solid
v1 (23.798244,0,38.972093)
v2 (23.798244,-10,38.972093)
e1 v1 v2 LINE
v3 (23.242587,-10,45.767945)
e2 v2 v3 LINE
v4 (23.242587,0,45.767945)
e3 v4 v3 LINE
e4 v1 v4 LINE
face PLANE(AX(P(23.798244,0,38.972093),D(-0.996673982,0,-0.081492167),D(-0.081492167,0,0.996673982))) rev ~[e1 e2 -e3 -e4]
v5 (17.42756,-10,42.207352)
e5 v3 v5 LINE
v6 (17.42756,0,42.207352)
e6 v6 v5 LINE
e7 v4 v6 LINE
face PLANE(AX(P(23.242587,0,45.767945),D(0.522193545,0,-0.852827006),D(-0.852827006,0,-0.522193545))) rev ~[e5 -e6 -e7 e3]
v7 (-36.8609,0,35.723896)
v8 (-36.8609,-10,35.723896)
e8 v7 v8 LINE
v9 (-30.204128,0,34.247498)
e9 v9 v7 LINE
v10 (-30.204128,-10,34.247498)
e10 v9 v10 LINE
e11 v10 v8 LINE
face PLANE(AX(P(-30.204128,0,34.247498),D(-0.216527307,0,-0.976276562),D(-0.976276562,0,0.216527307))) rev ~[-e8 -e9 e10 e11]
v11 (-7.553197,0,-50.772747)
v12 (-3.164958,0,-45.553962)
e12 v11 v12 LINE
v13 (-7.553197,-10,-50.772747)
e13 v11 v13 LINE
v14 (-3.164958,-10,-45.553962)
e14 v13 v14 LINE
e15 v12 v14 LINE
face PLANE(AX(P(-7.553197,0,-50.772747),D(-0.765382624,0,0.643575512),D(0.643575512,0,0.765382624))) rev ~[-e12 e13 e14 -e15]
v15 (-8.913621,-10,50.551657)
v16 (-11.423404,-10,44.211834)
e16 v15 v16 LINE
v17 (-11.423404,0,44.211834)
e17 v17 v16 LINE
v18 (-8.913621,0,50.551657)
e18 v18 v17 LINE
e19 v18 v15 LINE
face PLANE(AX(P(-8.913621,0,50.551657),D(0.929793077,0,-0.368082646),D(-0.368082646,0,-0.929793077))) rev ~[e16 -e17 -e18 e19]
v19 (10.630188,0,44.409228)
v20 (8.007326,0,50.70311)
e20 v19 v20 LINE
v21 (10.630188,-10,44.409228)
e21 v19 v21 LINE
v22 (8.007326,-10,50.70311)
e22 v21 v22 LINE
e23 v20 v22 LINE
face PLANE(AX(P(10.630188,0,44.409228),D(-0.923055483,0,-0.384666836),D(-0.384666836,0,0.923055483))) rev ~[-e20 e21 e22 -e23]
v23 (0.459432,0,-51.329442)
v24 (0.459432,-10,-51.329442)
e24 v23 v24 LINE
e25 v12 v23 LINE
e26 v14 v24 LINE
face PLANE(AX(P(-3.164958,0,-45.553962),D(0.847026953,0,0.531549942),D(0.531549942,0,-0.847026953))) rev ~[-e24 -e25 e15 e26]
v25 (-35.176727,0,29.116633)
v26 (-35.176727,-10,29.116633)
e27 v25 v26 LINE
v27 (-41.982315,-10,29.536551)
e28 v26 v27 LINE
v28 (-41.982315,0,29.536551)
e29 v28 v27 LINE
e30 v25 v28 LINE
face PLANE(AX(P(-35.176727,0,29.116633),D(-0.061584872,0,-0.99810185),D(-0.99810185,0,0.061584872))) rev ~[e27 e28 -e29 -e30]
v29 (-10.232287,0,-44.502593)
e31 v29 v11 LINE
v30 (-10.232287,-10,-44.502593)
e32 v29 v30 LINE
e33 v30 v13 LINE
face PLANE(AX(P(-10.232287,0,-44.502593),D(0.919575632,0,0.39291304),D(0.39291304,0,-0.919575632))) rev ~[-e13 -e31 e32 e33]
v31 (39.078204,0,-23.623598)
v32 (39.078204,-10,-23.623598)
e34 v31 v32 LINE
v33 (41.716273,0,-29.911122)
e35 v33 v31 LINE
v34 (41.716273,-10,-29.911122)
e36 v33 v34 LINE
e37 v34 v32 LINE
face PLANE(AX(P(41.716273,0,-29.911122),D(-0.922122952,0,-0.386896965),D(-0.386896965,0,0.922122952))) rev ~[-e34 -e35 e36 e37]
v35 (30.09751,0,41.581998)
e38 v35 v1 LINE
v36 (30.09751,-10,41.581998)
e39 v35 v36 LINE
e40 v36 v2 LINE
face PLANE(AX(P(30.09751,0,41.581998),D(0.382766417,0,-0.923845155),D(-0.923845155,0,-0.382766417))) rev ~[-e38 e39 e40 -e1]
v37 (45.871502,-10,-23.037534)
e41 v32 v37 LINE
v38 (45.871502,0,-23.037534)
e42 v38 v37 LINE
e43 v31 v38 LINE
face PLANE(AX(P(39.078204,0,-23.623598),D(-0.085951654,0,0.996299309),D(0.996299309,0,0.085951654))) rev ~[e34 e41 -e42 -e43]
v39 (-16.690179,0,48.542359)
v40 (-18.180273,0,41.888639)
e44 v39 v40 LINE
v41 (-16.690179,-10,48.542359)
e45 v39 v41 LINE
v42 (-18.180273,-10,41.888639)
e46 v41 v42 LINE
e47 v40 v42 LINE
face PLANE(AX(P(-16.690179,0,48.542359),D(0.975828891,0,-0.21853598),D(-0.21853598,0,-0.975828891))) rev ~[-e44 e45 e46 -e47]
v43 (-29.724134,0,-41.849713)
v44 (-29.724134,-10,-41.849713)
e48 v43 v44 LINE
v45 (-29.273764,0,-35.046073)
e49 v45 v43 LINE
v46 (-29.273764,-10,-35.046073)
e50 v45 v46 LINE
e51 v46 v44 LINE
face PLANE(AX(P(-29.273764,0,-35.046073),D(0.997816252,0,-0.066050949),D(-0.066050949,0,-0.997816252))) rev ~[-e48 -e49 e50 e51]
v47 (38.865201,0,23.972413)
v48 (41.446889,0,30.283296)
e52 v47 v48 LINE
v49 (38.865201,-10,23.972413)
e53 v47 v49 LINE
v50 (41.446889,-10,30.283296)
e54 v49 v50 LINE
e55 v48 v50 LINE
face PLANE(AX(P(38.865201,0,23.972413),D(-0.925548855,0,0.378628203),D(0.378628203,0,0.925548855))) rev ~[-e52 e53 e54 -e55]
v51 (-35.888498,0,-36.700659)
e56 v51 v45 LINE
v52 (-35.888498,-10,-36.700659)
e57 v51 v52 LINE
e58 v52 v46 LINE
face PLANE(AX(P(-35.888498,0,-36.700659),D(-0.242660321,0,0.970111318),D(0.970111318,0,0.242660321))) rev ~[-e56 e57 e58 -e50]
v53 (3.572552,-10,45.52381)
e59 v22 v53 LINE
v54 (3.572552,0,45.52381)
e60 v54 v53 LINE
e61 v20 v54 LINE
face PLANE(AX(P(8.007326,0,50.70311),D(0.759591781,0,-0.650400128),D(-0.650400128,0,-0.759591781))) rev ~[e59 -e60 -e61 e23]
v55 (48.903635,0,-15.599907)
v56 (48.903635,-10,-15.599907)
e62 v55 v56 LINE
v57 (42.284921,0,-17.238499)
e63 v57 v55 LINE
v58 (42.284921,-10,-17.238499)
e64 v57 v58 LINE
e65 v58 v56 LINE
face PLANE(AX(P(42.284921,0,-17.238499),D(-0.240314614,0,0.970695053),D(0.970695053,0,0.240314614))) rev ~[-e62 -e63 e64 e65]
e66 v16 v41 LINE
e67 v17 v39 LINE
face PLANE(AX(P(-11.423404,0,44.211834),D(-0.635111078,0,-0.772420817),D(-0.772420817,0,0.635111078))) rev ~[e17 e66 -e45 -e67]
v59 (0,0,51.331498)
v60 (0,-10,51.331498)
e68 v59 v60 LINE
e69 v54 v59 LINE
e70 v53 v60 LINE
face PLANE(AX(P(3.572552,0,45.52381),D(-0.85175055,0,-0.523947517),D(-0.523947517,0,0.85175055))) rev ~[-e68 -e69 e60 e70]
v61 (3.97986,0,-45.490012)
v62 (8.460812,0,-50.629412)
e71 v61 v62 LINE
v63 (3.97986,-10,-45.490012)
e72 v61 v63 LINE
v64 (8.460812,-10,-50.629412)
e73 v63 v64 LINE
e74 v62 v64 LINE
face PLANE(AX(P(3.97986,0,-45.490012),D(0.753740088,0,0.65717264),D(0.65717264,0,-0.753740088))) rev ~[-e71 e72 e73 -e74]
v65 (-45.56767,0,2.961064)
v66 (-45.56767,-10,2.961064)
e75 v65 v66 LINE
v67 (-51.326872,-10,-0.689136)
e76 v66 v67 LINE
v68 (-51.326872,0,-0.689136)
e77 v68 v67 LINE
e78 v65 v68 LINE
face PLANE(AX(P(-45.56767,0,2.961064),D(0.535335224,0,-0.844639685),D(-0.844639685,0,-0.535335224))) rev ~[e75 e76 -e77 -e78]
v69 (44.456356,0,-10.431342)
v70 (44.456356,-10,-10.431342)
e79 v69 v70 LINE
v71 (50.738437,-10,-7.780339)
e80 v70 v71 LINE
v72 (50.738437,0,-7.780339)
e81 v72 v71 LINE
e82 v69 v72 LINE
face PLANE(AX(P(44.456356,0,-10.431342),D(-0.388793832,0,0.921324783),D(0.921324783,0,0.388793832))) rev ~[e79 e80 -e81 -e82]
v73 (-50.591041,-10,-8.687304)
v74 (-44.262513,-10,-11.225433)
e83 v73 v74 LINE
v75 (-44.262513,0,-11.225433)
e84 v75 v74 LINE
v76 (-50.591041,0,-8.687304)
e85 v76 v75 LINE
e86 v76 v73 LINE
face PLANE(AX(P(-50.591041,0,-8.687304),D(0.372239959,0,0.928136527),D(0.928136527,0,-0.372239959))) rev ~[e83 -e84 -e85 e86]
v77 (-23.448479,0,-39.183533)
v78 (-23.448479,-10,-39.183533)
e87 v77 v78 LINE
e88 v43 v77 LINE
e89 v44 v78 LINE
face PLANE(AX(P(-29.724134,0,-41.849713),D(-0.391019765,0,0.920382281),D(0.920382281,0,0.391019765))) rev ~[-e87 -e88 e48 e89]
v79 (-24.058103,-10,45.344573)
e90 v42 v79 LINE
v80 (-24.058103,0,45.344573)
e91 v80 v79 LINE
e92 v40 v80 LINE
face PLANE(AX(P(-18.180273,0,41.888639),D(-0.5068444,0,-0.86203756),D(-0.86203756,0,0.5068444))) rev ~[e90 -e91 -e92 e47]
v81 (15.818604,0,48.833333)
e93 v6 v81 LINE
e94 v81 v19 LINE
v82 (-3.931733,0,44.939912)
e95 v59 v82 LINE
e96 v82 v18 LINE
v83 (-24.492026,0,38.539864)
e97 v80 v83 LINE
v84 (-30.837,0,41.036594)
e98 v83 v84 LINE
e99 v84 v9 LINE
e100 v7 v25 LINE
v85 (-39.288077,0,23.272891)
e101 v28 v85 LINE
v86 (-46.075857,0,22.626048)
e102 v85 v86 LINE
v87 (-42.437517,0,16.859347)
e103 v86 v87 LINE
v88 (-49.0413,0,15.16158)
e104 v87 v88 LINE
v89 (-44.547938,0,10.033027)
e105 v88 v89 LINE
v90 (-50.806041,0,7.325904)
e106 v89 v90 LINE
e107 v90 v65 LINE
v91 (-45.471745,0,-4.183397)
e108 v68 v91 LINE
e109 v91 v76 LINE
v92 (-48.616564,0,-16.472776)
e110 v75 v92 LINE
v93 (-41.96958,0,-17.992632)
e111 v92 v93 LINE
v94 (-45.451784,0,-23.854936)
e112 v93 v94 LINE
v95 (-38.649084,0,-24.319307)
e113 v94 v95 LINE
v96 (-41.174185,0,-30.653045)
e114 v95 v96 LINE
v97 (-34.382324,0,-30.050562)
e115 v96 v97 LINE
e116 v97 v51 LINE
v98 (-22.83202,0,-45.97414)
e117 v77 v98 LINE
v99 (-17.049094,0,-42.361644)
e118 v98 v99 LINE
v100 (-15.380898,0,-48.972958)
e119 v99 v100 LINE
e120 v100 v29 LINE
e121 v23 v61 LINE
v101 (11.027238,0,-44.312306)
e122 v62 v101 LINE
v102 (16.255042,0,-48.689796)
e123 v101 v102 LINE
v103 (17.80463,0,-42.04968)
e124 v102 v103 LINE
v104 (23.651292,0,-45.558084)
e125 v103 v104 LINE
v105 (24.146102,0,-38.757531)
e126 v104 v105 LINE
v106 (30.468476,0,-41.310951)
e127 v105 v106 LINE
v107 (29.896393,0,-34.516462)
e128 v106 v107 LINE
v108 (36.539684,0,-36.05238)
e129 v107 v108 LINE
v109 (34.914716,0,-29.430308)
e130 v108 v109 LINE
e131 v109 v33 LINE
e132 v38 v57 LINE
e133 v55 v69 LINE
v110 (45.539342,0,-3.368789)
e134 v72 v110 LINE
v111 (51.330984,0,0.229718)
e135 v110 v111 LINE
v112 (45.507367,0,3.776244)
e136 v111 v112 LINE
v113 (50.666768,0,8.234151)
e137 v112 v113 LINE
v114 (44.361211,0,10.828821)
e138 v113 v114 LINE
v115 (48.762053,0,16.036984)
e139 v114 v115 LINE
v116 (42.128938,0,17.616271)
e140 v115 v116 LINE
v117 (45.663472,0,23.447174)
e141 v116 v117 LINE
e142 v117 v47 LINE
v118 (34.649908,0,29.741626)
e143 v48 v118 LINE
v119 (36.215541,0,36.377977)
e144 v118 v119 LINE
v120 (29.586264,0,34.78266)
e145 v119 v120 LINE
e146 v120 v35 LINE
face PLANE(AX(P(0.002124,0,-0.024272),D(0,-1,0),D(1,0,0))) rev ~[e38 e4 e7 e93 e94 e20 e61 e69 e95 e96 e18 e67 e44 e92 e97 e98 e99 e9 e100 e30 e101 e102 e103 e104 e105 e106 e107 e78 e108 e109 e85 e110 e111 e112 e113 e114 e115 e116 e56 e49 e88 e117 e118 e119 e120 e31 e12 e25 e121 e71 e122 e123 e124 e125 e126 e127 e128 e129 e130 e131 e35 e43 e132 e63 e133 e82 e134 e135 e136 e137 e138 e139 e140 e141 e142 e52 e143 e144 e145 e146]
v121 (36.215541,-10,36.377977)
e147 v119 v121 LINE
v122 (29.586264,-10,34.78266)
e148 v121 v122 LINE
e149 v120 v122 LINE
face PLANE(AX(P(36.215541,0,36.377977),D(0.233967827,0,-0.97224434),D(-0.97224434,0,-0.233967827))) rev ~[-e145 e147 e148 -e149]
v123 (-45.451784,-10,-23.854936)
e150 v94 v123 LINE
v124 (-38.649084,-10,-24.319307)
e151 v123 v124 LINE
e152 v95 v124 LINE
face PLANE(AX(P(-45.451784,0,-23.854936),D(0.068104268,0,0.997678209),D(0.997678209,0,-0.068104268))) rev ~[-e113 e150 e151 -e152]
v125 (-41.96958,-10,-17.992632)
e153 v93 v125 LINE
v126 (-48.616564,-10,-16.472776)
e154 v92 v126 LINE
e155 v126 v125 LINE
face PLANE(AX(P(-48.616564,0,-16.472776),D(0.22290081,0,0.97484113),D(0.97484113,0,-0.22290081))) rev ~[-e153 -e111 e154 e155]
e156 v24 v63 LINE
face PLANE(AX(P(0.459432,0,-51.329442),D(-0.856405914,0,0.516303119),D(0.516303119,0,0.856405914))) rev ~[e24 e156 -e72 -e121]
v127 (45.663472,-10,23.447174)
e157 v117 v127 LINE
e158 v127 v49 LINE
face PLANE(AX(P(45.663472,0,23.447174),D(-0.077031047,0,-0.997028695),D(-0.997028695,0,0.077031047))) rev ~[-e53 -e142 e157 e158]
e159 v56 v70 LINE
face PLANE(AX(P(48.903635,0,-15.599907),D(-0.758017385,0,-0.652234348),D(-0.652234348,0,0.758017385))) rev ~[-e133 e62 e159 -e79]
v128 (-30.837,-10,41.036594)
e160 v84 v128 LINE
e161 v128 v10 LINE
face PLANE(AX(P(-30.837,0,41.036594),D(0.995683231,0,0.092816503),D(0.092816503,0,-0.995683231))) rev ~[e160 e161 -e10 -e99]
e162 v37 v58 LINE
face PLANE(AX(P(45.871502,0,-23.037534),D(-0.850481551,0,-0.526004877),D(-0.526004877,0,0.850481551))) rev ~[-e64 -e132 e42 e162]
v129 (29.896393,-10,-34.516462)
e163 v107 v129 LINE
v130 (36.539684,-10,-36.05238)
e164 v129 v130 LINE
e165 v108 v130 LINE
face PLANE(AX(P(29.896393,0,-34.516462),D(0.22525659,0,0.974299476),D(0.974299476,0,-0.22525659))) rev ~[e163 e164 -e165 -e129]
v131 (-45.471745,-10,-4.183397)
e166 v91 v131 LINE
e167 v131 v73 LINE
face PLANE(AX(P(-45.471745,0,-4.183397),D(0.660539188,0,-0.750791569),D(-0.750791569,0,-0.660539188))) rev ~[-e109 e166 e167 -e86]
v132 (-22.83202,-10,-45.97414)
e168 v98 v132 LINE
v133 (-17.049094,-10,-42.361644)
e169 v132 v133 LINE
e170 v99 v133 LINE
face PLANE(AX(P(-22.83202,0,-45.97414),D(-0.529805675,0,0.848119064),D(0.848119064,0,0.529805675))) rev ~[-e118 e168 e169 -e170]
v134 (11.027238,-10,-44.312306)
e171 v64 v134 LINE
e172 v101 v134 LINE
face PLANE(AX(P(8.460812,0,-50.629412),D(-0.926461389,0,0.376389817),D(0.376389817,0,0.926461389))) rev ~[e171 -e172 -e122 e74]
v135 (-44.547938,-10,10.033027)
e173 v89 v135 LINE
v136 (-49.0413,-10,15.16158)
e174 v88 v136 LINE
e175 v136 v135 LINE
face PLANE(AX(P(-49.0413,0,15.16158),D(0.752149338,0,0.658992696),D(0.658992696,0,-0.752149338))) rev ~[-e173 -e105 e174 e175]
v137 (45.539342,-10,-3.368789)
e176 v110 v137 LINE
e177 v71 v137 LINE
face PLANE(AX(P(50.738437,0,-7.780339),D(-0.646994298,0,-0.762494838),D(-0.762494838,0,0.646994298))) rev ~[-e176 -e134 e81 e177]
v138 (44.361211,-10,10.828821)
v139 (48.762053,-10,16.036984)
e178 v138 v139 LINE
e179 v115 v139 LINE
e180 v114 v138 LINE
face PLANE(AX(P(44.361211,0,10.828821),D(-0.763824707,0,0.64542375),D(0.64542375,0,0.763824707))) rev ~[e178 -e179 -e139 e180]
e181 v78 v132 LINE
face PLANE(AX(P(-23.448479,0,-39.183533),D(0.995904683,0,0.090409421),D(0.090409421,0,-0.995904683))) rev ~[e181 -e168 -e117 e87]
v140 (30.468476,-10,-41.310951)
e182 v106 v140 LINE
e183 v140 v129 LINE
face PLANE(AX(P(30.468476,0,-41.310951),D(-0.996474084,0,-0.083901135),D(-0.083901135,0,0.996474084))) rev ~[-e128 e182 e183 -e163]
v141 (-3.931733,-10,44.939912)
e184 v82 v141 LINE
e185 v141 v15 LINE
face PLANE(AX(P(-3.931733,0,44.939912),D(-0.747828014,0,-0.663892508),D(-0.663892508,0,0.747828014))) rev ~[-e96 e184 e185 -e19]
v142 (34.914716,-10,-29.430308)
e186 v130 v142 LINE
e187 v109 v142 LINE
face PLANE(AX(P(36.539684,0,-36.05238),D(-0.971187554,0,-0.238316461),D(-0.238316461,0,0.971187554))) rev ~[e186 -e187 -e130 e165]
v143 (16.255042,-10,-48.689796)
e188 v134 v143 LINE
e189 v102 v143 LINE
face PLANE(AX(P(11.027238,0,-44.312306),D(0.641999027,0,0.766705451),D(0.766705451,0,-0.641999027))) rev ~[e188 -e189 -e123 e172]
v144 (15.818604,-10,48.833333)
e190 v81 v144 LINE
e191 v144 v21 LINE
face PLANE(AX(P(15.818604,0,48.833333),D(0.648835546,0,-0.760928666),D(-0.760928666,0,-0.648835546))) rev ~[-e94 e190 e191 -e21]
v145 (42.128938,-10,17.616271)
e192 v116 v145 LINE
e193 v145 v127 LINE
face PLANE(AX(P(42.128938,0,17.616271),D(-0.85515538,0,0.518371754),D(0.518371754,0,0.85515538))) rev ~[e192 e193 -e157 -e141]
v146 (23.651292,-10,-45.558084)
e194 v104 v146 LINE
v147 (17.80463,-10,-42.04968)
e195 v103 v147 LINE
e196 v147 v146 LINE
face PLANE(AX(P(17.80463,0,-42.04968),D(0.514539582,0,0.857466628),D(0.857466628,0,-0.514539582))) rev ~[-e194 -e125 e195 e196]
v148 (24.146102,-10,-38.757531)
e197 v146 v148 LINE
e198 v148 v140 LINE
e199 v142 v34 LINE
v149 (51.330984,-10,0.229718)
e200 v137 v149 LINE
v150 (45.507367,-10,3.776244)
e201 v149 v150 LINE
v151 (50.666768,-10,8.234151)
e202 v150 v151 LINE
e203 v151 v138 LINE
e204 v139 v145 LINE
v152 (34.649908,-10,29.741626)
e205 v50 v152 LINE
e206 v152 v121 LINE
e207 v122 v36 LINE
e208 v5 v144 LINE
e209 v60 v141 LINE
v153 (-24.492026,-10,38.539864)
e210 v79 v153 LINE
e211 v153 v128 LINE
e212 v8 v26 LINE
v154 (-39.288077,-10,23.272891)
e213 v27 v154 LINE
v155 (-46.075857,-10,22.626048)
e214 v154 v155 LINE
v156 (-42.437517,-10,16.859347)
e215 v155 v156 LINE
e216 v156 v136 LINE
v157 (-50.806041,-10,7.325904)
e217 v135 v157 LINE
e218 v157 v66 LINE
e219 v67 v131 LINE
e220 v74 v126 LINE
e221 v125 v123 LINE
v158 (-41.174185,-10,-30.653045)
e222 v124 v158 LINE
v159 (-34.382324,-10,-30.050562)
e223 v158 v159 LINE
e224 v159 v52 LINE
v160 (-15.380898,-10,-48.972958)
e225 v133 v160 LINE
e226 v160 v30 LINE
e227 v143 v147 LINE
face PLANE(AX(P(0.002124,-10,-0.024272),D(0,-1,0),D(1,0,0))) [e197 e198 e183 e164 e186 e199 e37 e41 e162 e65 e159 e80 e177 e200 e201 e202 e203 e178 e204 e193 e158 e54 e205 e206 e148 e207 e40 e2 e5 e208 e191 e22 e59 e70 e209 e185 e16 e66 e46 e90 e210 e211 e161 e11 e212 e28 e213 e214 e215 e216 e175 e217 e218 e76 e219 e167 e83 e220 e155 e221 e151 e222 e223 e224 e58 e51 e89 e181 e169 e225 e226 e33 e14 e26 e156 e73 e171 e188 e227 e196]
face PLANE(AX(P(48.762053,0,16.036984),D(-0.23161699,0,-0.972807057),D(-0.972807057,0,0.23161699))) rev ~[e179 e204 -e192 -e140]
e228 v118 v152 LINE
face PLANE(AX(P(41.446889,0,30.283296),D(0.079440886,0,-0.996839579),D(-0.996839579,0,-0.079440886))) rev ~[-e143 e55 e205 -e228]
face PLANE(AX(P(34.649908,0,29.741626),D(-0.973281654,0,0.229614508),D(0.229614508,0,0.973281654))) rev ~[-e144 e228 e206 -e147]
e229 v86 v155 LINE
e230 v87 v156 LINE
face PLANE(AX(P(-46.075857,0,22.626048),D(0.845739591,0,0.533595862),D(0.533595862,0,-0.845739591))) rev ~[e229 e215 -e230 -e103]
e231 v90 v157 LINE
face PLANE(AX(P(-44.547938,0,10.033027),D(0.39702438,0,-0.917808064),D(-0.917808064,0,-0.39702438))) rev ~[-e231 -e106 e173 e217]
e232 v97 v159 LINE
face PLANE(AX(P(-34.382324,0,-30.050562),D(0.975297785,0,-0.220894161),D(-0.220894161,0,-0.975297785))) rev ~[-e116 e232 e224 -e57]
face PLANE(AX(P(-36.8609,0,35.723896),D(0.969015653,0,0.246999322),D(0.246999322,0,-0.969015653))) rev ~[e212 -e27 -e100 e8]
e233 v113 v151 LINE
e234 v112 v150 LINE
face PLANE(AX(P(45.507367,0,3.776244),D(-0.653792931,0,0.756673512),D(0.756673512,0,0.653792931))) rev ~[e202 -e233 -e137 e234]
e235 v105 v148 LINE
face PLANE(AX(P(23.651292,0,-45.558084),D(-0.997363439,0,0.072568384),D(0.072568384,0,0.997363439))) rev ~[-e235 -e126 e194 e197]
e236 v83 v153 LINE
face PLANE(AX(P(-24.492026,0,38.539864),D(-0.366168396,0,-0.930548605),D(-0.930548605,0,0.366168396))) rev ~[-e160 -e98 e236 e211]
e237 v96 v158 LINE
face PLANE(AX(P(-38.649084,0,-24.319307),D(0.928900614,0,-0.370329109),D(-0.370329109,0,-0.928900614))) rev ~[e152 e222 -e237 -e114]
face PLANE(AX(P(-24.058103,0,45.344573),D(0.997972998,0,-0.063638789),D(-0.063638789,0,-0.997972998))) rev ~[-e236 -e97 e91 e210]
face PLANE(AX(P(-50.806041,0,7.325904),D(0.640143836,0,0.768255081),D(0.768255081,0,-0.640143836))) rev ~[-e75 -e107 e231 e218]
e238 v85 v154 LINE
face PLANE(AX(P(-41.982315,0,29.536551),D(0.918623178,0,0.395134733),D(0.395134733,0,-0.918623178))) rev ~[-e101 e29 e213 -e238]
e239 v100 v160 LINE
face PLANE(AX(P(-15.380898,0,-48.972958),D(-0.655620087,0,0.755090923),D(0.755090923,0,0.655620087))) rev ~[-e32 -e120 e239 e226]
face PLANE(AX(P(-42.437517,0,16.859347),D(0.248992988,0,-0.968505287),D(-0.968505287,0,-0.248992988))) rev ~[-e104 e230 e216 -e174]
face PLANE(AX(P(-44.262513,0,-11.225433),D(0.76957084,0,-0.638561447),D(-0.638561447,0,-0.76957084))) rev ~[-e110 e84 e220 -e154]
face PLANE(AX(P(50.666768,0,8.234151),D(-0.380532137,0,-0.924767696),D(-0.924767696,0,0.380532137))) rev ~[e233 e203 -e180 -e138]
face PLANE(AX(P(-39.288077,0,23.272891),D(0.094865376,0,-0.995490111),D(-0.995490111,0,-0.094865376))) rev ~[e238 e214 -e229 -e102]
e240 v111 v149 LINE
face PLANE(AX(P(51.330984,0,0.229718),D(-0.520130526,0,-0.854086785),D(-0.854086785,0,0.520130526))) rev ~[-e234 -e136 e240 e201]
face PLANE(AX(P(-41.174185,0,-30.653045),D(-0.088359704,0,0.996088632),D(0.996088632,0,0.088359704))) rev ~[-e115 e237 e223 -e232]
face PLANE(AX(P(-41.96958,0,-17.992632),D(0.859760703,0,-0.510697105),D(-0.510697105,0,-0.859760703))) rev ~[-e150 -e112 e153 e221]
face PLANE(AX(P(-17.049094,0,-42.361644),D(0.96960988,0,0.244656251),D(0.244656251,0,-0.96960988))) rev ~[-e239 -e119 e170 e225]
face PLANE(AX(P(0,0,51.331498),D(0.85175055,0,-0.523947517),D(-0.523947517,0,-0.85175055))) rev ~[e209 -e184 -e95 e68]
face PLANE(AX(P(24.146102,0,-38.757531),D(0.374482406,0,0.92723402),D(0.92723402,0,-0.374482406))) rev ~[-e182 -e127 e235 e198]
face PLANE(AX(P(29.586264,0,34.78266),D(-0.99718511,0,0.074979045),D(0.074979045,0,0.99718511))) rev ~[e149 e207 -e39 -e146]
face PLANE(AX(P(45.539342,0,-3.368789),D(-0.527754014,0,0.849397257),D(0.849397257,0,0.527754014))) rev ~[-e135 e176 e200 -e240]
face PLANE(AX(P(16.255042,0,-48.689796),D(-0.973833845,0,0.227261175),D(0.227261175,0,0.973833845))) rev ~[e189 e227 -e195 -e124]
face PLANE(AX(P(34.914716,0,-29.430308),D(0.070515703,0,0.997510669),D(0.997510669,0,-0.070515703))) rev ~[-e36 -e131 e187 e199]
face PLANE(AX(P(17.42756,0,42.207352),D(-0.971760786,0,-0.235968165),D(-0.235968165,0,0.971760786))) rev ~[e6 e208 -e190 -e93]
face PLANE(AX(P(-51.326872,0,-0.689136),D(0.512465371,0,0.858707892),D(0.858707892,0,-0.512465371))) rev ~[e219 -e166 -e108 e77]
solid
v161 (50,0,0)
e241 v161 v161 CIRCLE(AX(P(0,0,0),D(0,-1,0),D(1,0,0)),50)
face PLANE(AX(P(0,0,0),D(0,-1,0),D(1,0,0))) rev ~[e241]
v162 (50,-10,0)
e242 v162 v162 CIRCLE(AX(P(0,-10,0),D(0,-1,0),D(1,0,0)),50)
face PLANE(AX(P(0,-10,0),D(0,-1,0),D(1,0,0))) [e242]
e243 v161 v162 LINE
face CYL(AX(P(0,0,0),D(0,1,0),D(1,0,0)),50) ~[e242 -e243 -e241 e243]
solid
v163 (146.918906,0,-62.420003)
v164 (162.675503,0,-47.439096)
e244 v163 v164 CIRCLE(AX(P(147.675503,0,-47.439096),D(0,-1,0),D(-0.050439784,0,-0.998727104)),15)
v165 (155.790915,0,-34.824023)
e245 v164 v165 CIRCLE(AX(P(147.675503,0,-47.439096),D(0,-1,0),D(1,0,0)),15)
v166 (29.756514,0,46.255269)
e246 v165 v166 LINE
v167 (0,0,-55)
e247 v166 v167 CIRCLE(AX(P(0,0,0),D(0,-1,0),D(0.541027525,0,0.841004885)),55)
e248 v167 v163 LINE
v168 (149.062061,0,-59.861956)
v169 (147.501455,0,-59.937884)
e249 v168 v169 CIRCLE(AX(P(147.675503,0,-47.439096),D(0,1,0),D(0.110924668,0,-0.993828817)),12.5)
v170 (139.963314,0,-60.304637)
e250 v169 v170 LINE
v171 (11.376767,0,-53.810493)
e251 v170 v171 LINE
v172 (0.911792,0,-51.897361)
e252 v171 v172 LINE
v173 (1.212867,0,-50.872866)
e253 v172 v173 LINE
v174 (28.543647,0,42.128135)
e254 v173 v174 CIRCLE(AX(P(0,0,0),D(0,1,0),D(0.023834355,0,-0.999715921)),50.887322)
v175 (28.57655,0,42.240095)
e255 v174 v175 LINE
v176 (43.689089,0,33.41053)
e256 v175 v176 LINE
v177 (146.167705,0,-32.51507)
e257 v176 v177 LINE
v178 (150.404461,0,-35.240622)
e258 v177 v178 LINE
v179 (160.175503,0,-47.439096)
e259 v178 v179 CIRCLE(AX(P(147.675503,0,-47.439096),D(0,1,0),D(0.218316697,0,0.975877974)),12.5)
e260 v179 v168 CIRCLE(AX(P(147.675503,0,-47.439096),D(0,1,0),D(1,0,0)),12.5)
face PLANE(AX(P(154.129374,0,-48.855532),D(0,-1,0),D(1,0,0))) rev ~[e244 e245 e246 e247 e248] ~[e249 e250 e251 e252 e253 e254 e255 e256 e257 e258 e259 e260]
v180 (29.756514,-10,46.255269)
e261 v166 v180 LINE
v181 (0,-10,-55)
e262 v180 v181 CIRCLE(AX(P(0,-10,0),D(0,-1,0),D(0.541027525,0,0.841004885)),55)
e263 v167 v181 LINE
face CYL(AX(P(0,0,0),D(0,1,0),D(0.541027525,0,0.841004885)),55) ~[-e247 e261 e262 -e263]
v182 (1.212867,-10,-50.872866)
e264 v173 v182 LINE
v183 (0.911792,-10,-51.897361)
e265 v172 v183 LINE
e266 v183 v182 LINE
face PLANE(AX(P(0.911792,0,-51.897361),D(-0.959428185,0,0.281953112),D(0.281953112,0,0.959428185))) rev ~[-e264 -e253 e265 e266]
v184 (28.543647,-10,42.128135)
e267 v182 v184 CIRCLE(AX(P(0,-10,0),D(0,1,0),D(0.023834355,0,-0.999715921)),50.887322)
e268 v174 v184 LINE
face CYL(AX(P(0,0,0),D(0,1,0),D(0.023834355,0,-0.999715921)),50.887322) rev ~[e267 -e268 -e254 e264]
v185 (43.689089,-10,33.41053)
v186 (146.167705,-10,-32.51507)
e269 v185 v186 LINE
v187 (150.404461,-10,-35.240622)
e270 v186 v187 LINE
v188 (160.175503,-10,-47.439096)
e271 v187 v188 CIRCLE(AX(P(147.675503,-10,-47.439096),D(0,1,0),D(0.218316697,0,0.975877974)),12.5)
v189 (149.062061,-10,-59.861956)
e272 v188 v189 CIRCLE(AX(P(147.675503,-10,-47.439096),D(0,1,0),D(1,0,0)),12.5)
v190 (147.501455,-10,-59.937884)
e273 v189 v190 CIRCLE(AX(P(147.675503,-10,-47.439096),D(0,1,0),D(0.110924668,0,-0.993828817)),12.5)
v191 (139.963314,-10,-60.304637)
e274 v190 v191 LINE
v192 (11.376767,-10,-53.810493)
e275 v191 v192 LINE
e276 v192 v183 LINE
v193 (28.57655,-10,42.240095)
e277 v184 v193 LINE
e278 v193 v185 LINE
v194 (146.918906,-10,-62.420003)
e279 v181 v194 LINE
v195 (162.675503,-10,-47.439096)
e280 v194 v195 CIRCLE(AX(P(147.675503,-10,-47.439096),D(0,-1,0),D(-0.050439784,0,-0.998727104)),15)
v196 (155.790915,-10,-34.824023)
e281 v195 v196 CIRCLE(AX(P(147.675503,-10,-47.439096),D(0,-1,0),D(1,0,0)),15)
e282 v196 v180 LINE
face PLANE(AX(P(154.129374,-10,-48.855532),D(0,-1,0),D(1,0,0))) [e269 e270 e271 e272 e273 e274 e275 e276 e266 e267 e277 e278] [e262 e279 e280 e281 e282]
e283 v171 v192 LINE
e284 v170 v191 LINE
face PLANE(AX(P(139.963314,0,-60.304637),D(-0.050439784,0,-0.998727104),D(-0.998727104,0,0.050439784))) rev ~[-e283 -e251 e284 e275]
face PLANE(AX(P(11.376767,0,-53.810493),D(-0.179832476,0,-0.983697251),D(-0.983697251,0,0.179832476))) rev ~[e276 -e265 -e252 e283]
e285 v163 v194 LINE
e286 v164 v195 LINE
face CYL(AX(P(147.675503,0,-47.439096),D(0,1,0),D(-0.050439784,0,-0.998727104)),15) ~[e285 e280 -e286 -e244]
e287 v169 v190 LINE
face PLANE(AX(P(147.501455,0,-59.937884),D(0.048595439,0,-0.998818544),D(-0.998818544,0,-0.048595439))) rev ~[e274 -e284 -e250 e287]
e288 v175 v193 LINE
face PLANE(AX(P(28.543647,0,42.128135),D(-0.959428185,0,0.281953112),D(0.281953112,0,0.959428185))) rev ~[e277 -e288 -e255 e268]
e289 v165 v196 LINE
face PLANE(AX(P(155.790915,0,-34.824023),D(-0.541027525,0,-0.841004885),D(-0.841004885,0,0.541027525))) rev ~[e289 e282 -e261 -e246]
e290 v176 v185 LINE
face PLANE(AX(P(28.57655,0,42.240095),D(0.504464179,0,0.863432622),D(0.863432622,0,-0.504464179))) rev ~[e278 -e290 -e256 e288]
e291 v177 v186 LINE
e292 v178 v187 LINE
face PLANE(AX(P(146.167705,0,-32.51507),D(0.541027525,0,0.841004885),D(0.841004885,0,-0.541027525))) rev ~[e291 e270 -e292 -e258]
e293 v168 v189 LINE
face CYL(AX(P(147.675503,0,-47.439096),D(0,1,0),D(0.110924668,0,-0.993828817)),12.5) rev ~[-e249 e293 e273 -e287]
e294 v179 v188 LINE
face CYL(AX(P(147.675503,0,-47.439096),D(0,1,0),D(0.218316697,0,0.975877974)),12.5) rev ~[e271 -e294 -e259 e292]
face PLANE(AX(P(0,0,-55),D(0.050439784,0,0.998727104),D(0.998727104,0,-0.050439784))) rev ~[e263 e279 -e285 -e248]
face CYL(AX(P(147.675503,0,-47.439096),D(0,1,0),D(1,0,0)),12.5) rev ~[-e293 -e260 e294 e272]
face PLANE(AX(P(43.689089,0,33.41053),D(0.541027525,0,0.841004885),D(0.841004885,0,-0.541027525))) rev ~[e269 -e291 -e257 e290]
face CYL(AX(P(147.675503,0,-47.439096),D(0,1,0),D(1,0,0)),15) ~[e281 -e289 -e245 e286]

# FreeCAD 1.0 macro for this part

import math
import FreeCAD as App
import Part
import Sketcher
Q = App.Units.Quantity

doc = App.newDocument("Part")
body = doc.addObject("PartDesign::Body", "Body")

sketch1 = body.newObject("Sketcher::SketchObject", "Sketch")
sketch1.AttachmentSupport = (doc.getObject("XZ_Plane"), [""])
sketch1.MapMode = "FlatFace"
sketch1.addGeometry(Part.Circle(App.Vector(0, 0, 0), App.Vector(0, 0, 1), 50), False)
sketch1.addConstraint([
    Sketcher.Constraint("Coincident", 0, 3, -1, 1),
    Sketcher.Constraint("Diameter", 0, Q("100 mm")),
])
pad1 = body.newObject("PartDesign::Pad", "Pad")
pad1.Profile = sketch1
pad1.Length = 10
body2 = doc.addObject("PartDesign::Body", "Body001")

sketch2 = body2.newObject("Sketcher::SketchObject", "Sketch001")
sketch2.AttachmentSupport = (doc.getObject("XZ_Plane001"), [""])
sketch2.MapMode = "FlatFace"
sketch2.addGeometry([
    Part.LineSegment(App.Vector(0, -55, 0), App.Vector(146.92, -62.42, 0)),
    Part.ArcOfCircle(Part.Circle(App.Vector(147.68, -47.44, 0), App.Vector(0, 0, 1), 15), math.radians(-93), math.radians(0)),
    Part.ArcOfCircle(Part.Circle(App.Vector(147.68, -47.44, 0), App.Vector(0, 0, 1), 15), math.radians(0), math.radians(57)),
    Part.LineSegment(App.Vector(155.79, -34.82, 0), App.Vector(29.76, 46.26, 0)),
    Part.ArcOfCircle(Part.Circle(App.Vector(0, 0, 0), App.Vector(0, 0, 1), 55), math.radians(57), math.radians(270)),
    Part.ArcOfCircle(Part.Circle(App.Vector(147.68, -47.44, 0), App.Vector(0, 0, 1), 12.5), math.radians(0), math.radians(77)),
    Part.ArcOfCircle(Part.Circle(App.Vector(147.68, -47.44, 0), App.Vector(0, 0, 1), 12.5), math.radians(-84), math.radians(0)),
    Part.ArcOfCircle(Part.Circle(App.Vector(147.68, -47.44, 0), App.Vector(0, 0, 1), 12.5), math.radians(-90.8), math.radians(-83.63)),
    Part.LineSegment(App.Vector(147.5, -59.94, 0), App.Vector(139.96, -60.3, 0)),
    Part.LineSegment(App.Vector(139.96, -60.3, 0), App.Vector(11.38, -53.81, 0)),
    Part.LineSegment(App.Vector(11.38, -53.81, 0), App.Vector(0.91, -51.9, 0)),
    Part.LineSegment(App.Vector(0.91, -51.9, 0), App.Vector(1.21, -50.87, 0)),
    Part.ArcOfCircle(Part.Circle(App.Vector(0, 0, 0), App.Vector(0, 0, 1), 50.89), math.radians(56), math.radians(271)),
    Part.LineSegment(App.Vector(28.54, 42.13, 0), App.Vector(28.58, 42.24, 0)),
    Part.LineSegment(App.Vector(28.58, 42.24, 0), App.Vector(43.69, 33.41, 0)),
    Part.LineSegment(App.Vector(43.69, 33.41, 0), App.Vector(146.17, -32.52, 0)),
    Part.LineSegment(App.Vector(146.17, -32.52, 0), App.Vector(150.4, -35.24, 0)),
], False)
sketch2.addConstraint([
    Sketcher.Constraint("Tangent", 0, 2, 1, 1),
    Sketcher.Constraint("Tangent", 1, 2, 2, 1),
    Sketcher.Constraint("Tangent", 2, 2, 3, 1),
    Sketcher.Constraint("Tangent", 3, 2, 4, 1),
    Sketcher.Constraint("Coincident", 4, 2, 0, 1),
    Sketcher.Constraint("Tangent", 5, 1, 6, 2),
    Sketcher.Constraint("Tangent", 6, 1, 7, 2),
    Sketcher.Constraint("Coincident", 7, 1, 8, 1),
    Sketcher.Constraint("Coincident", 8, 2, 9, 1),
    Sketcher.Constraint("Coincident", 9, 2, 10, 1),
    Sketcher.Constraint("Coincident", 10, 2, 11, 1),
    Sketcher.Constraint("Coincident", 11, 2, 12, 2),
    Sketcher.Constraint("Coincident", 12, 1, 13, 1),
    Sketcher.Constraint("Coincident", 13, 2, 14, 1),
    Sketcher.Constraint("Coincident", 14, 2, 15, 1),
    Sketcher.Constraint("Coincident", 15, 2, 16, 1),
    Sketcher.Constraint("Coincident", 16, 2, 5, 2),
    Sketcher.Constraint("Coincident", 4, 3, -1, 1),
    Sketcher.Constraint("Coincident", 12, 3, -1, 1),
    Sketcher.Constraint("Coincident", 5, 3, 1, 3),
    Sketcher.Constraint("Coincident", 7, 3, 1, 3),
    Sketcher.Constraint("Equal", 1, 2),
    Sketcher.Constraint("PointOnObject", 4, 2, -2),
    Sketcher.Constraint("Parallel", 0, 9),
    Sketcher.Constraint("Parallel", 11, 13),
    Sketcher.Constraint("Parallel", 3, 15),
    Sketcher.Constraint("Parallel", 15, 16),
    Sketcher.Constraint("Horizontal", 7, 3, 1, 2),
    Sketcher.Constraint("Horizontal", 1, 2, 5, 1),
    Sketcher.Constraint("Radius", 1, Q("15 mm")),
    Sketcher.Constraint("Radius", 4, Q("55 mm")),
    Sketcher.Constraint("Radius", 5, Q("12.5 mm")),
    Sketcher.Constraint("Angle", 10, Q("169.639998 deg")),
    Sketcher.Constraint("Radius", 12, Q("50.887322 mm")),
    Sketcher.Constraint("DistanceY", 11, 2, 12, 1, Q("93.001 mm")),
    Sketcher.Constraint("DistanceX", 3, 2, 2, 2, Q("126.034402 mm")),
    Sketcher.Constraint("DistanceX", 11, 2, 9, 2, Q("10.163901 mm")),
    Sketcher.Constraint("DistanceY", 16, 2, 2, 2, Q("0.416599 mm")),
    Sketcher.Constraint("Distance", 8, Q("7.547058 mm")),
    Sketcher.Constraint("Distance", 10, Q("10.638411 mm")),
    Sketcher.Constraint("Distance", 11, Q("1.067819 mm")),
    Sketcher.Constraint("Distance", 14, Q("17.502858 mm")),
    Sketcher.Constraint("Distance", 15, Q("121.852581 mm")),
    Sketcher.Constraint("Distance", 16, Q("5.037731 mm")),
    Sketcher.Constraint("DistanceY", -1, 1, 3, 2, Q("46.255269 mm")),
    Sketcher.Constraint("DistanceX", -1, 1, 6, 1, Q("149.062061 mm")),
    Sketcher.Constraint("DistanceX", -1, 1, 10, 2, Q("0.911792 mm")),
    Sketcher.Constraint("DistanceY", 7, 1, 6, 1, Q("0.075928 mm")),
])
pad2 = body2.newObject("PartDesign::Pad", "Pad001")
pad2.Profile = sketch2
pad2.Length = 10
body3 = doc.addObject("PartDesign::Body", "Body002")

sketch3 = body3.newObject("Sketcher::SketchObject", "Sketch002")
sketch3.AttachmentSupport = (doc.getObject("XZ_Plane002"), [""])
sketch3.MapMode = "FlatFace"
sketch3.addGeometry([
    Part.LineSegment(App.Vector(0, 51.331498, 0), App.Vector(-3.931733, 44.939912, 0)),
    Part.LineSegment(App.Vector(-3.931733, 44.939912, 0), App.Vector(-8.913621, 50.551657, 0)),
    Part.LineSegment(App.Vector(-8.913621, 50.551657, 0), App.Vector(-11.423404, 44.211834, 0)),
    Part.LineSegment(App.Vector(-11.423404, 44.211834, 0), App.Vector(-16.690179, 48.542359, 0)),
    Part.LineSegment(App.Vector(-16.690179, 48.542359, 0), App.Vector(-18.180273, 41.888639, 0)),
    Part.LineSegment(App.Vector(-18.180273, 41.888639, 0), App.Vector(-24.058103, 45.344573, 0)),
    Part.LineSegment(App.Vector(-24.058103, 45.344573, 0), App.Vector(-24.492026, 38.539864, 0)),
    Part.LineSegment(App.Vector(-24.492026, 38.539864, 0), App.Vector(-30.837, 41.036594, 0)),
    Part.LineSegment(App.Vector(-30.837, 41.036594, 0), App.Vector(-30.204128, 34.247498, 0)),
    Part.LineSegment(App.Vector(-30.204128, 34.247498, 0), App.Vector(-36.8609, 35.723896, 0)),
    Part.LineSegment(App.Vector(-36.8609, 35.723896, 0), App.Vector(-35.176727, 29.116633, 0)),
    Part.LineSegment(App.Vector(-35.176727, 29.116633, 0), App.Vector(-41.982315, 29.536551, 0)),
    Part.LineSegment(App.Vector(-41.982315, 29.536551, 0), App.Vector(-39.288077, 23.272891, 0)),
    Part.LineSegment(App.Vector(-39.288077, 23.272891, 0), App.Vector(-46.075857, 22.626048, 0)),
    Part.LineSegment(App.Vector(-46.075857, 22.626048, 0), App.Vector(-42.437517, 16.859347, 0)),
    Part.LineSegment(App.Vector(-42.437517, 16.859347, 0), App.Vector(-49.0413, 15.16158, 0)),
    Part.LineSegment(App.Vector(-49.0413, 15.16158, 0), App.Vector(-44.547938, 10.033027, 0)),
    Part.LineSegment(App.Vector(-44.547938, 10.033027, 0), App.Vector(-50.806041, 7.325904, 0)),
    Part.LineSegment(App.Vector(-50.806041, 7.325904, 0), App.Vector(-45.56767, 2.961064, 0)),
    Part.LineSegment(App.Vector(-45.56767, 2.961064, 0), App.Vector(-51.326872, -0.689136, 0)),
    Part.LineSegment(App.Vector(-51.326872, -0.689136, 0), App.Vector(-45.471745, -4.183397, 0)),
    Part.LineSegment(App.Vector(-45.471745, -4.183397, 0), App.Vector(-50.591041, -8.687304, 0)),
    Part.LineSegment(App.Vector(-50.591041, -8.687304, 0), App.Vector(-44.262513, -11.225433, 0)),
    Part.LineSegment(App.Vector(-44.262513, -11.225433, 0), App.Vector(-48.616564, -16.472776, 0)),
    Part.LineSegment(App.Vector(-48.616564, -16.472776, 0), App.Vector(-41.96958, -17.992632, 0)),
    Part.LineSegment(App.Vector(-41.96958, -17.992632, 0), App.Vector(-45.451784, -23.854936, 0)),
    Part.LineSegment(App.Vector(-45.451784, -23.854936, 0), App.Vector(-38.649084, -24.319307, 0)),
    Part.LineSegment(App.Vector(-38.649084, -24.319307, 0), App.Vector(-41.174185, -30.653045, 0)),
    Part.LineSegment(App.Vector(-41.174185, -30.653045, 0), App.Vector(-34.382324, -30.050562, 0)),
    Part.LineSegment(App.Vector(-34.382324, -30.050562, 0), App.Vector(-35.888498, -36.700659, 0)),
    Part.LineSegment(App.Vector(-35.888498, -36.700659, 0), App.Vector(-29.273764, -35.046073, 0)),
    Part.LineSegment(App.Vector(-29.273764, -35.046073, 0), App.Vector(-29.724134, -41.849713, 0)),
    Part.LineSegment(App.Vector(-29.724134, -41.849713, 0), App.Vector(-23.448479, -39.183533, 0)),
    Part.LineSegment(App.Vector(-23.448479, -39.183533, 0), App.Vector(-22.83202, -45.97414, 0)),
    Part.LineSegment(App.Vector(-22.83202, -45.97414, 0), App.Vector(-17.049094, -42.361644, 0)),
    Part.LineSegment(App.Vector(-17.049094, -42.361644, 0), App.Vector(-15.380898, -48.972958, 0)),
    Part.LineSegment(App.Vector(-15.380898, -48.972958, 0), App.Vector(-10.232287, -44.502593, 0)),
    Part.LineSegment(App.Vector(-10.232287, -44.502593, 0), App.Vector(-7.553197, -50.772747, 0)),
    Part.LineSegment(App.Vector(-7.553197, -50.772747, 0), App.Vector(-3.164958, -45.553962, 0)),
    Part.LineSegment(App.Vector(-3.164958, -45.553962, 0), App.Vector(0.459432, -51.329442, 0)),
    Part.LineSegment(App.Vector(0.459432, -51.329442, 0), App.Vector(3.97986, -45.490012, 0)),
    Part.LineSegment(App.Vector(3.97986, -45.490012, 0), App.Vector(8.460812, -50.629412, 0)),
    Part.LineSegment(App.Vector(8.460812, -50.629412, 0), App.Vector(11.027238, -44.312306, 0)),
    Part.LineSegment(App.Vector(11.027238, -44.312306, 0), App.Vector(16.255042, -48.689796, 0)),
    Part.LineSegment(App.Vector(16.255042, -48.689796, 0), App.Vector(17.80463, -42.04968, 0)),
    Part.LineSegment(App.Vector(17.80463, -42.04968, 0), App.Vector(23.651292, -45.558084, 0)),
    Part.LineSegment(App.Vector(23.651292, -45.558084, 0), App.Vector(24.146102, -38.757531, 0)),
    Part.LineSegment(App.Vector(24.146102, -38.757531, 0), App.Vector(30.468476, -41.310951, 0)),
    Part.LineSegment(App.Vector(30.468476, -41.310951, 0), App.Vector(29.896393, -34.516462, 0)),
    Part.LineSegment(App.Vector(29.896393, -34.516462, 0), App.Vector(36.539684, -36.05238, 0)),
    Part.LineSegment(App.Vector(36.539684, -36.05238, 0), App.Vector(34.914716, -29.430308, 0)),
    Part.LineSegment(App.Vector(34.914716, -29.430308, 0), App.Vector(41.716273, -29.911122, 0)),
    Part.LineSegment(App.Vector(41.716273, -29.911122, 0), App.Vector(39.078204, -23.623598, 0)),
    Part.LineSegment(App.Vector(39.078204, -23.623598, 0), App.Vector(45.871502, -23.037534, 0)),
    Part.LineSegment(App.Vector(45.871502, -23.037534, 0), App.Vector(42.284921, -17.238499, 0)),
    Part.LineSegment(App.Vector(42.284921, -17.238499, 0), App.Vector(48.903635, -15.599907, 0)),
    Part.LineSegment(App.Vector(48.903635, -15.599907, 0), App.Vector(44.456356, -10.431342, 0)),
    Part.LineSegment(App.Vector(44.456356, -10.431342, 0), App.Vector(50.738437, -7.780339, 0)),
    Part.LineSegment(App.Vector(50.738437, -7.780339, 0), App.Vector(45.539342, -3.368789, 0)),
    Part.LineSegment(App.Vector(45.539342, -3.368789, 0), App.Vector(51.330984, 0.229718, 0)),
    Part.LineSegment(App.Vector(51.330984, 0.229718, 0), App.Vector(45.507367, 3.776244, 0)),
    Part.LineSegment(App.Vector(45.507367, 3.776244, 0), App.Vector(50.666768, 8.234151, 0)),
    Part.LineSegment(App.Vector(50.666768, 8.234151, 0), App.Vector(44.361211, 10.828821, 0)),
    Part.LineSegment(App.Vector(44.361211, 10.828821, 0), App.Vector(48.762053, 16.036984, 0)),
    Part.LineSegment(App.Vector(48.762053, 16.036984, 0), App.Vector(42.128938, 17.616271, 0)),
    Part.LineSegment(App.Vector(42.128938, 17.616271, 0), App.Vector(45.663472, 23.447174, 0)),
    Part.LineSegment(App.Vector(45.663472, 23.447174, 0), App.Vector(38.865201, 23.972413, 0)),
    Part.LineSegment(App.Vector(38.865201, 23.972413, 0), App.Vector(41.446889, 30.283296, 0)),
    Part.LineSegment(App.Vector(41.446889, 30.283296, 0), App.Vector(34.649908, 29.741626, 0)),
    Part.LineSegment(App.Vector(34.649908, 29.741626, 0), App.Vector(36.215541, 36.377977, 0)),
    Part.LineSegment(App.Vector(36.215541, 36.377977, 0), App.Vector(29.586264, 34.78266, 0)),
    Part.LineSegment(App.Vector(29.586264, 34.78266, 0), App.Vector(30.09751, 41.581998, 0)),
    Part.LineSegment(App.Vector(30.09751, 41.581998, 0), App.Vector(23.798244, 38.972093, 0)),
    Part.LineSegment(App.Vector(23.798244, 38.972093, 0), App.Vector(23.242587, 45.767945, 0)),
    Part.LineSegment(App.Vector(23.242587, 45.767945, 0), App.Vector(17.42756, 42.207352, 0)),
    Part.LineSegment(App.Vector(17.42756, 42.207352, 0), App.Vector(15.818604, 48.833333, 0)),
    Part.LineSegment(App.Vector(15.818604, 48.833333, 0), App.Vector(10.630188, 44.409228, 0)),
    Part.LineSegment(App.Vector(10.630188, 44.409228, 0), App.Vector(8.007326, 50.70311, 0)),
    Part.LineSegment(App.Vector(8.007326, 50.70311, 0), App.Vector(3.572552, 45.52381, 0)),
    Part.LineSegment(App.Vector(3.572552, 45.52381, 0), App.Vector(0, 51.331498, 0)),
], False)
sketch3.addConstraint([
    Sketcher.Constraint("Coincident", 0, 2, 1, 1),
    Sketcher.Constraint("Coincident", 1, 2, 2, 1),
    Sketcher.Constraint("Coincident", 2, 2, 3, 1),
    Sketcher.Constraint("Coincident", 3, 2, 4, 1),
    Sketcher.Constraint("Coincident", 4, 2, 5, 1),
    Sketcher.Constraint("Coincident", 5, 2, 6, 1),
    Sketcher.Constraint("Coincident", 6, 2, 7, 1),
    Sketcher.Constraint("Coincident", 7, 2, 8, 1),
    Sketcher.Constraint("Coincident", 8, 2, 9, 1),
    Sketcher.Constraint("Coincident", 9, 2, 10, 1),
    Sketcher.Constraint("Coincident", 10, 2, 11, 1),
    Sketcher.Constraint("Coincident", 11, 2, 12, 1),
    Sketcher.Constraint("Coincident", 12, 2, 13, 1),
    Sketcher.Constraint("Coincident", 13, 2, 14, 1),
    Sketcher.Constraint("Coincident", 14, 2, 15, 1),
    Sketcher.Constraint("Coincident", 15, 2, 16, 1),
    Sketcher.Constraint("Coincident", 16, 2, 17, 1),
    Sketcher.Constraint("Coincident", 17, 2, 18, 1),
    Sketcher.Constraint("Coincident", 18, 2, 19, 1),
    Sketcher.Constraint("Coincident", 19, 2, 20, 1),
    Sketcher.Constraint("Coincident", 20, 2, 21, 1),
    Sketcher.Constraint("Coincident", 21, 2, 22, 1),
    Sketcher.Constraint("Coincident", 22, 2, 23, 1),
    Sketcher.Constraint("Coincident", 23, 2, 24, 1),
    Sketcher.Constraint("Coincident", 24, 2, 25, 1),
    Sketcher.Constraint("Coincident", 25, 2, 26, 1),
    Sketcher.Constraint("Coincident", 26, 2, 27, 1),
    Sketcher.Constraint("Coincident", 27, 2, 28, 1),
    Sketcher.Constraint("Coincident", 28, 2, 29, 1),
    Sketcher.Constraint("Coincident", 29, 2, 30, 1),
    Sketcher.Constraint("Coincident", 30, 2, 31, 1),
    Sketcher.Constraint("Coincident", 31, 2, 32, 1),
    Sketcher.Constraint("Coincident", 32, 2, 33, 1),
    Sketcher.Constraint("Coincident", 33, 2, 34, 1),
    Sketcher.Constraint("Coincident", 34, 2, 35, 1),
    Sketcher.Constraint("Coincident", 35, 2, 36, 1),
    Sketcher.Constraint("Coincident", 36, 2, 37, 1),
    Sketcher.Constraint("Coincident", 37, 2, 38, 1),
    Sketcher.Constraint("Coincident", 38, 2, 39, 1),
    Sketcher.Constraint("Coincident", 39, 2, 40, 1),
    Sketcher.Constraint("Coincident", 40, 2, 41, 1),
    Sketcher.Constraint("Coincident", 41, 2, 42, 1),
    Sketcher.Constraint("Coincident", 42, 2, 43, 1),
    Sketcher.Constraint("Coincident", 43, 2, 44, 1),
    Sketcher.Constraint("Coincident", 44, 2, 45, 1),
    Sketcher.Constraint("Coincident", 45, 2, 46, 1),
    Sketcher.Constraint("Coincident", 46, 2, 47, 1),
    Sketcher.Constraint("Coincident", 47, 2, 48, 1),
    Sketcher.Constraint("Coincident", 48, 2, 49, 1),
    Sketcher.Constraint("Coincident", 49, 2, 50, 1),
    Sketcher.Constraint("Coincident", 50, 2, 51, 1),
    Sketcher.Constraint("Coincident", 51, 2, 52, 1),
    Sketcher.Constraint("Coincident", 52, 2, 53, 1),
    Sketcher.Constraint("Coincident", 53, 2, 54, 1),
    Sketcher.Constraint("Coincident", 54, 2, 55, 1),
    Sketcher.Constraint("Coincident", 55, 2, 56, 1),
    Sketcher.Constraint("Coincident", 56, 2, 57, 1),
    Sketcher.Constraint("Coincident", 57, 2, 58, 1),
    Sketcher.Constraint("Coincident", 58, 2, 59, 1),
    Sketcher.Constraint("Coincident", 59, 2, 60, 1),
    Sketcher.Constraint("Coincident", 60, 2, 61, 1),
    Sketcher.Constraint("Coincident", 61, 2, 62, 1),
    Sketcher.Constraint("Coincident", 62, 2, 63, 1),
    Sketcher.Constraint("Coincident", 63, 2, 64, 1),
    Sketcher.Constraint("Coincident", 64, 2, 65, 1),
    Sketcher.Constraint("Coincident", 65, 2, 66, 1),
    Sketcher.Constraint("Coincident", 66, 2, 67, 1),
    Sketcher.Constraint("Coincident", 67, 2, 68, 1),
    Sketcher.Constraint("Coincident", 68, 2, 69, 1),
    Sketcher.Constraint("Coincident", 69, 2, 70, 1),
    Sketcher.Constraint("Coincident", 70, 2, 71, 1),
    Sketcher.Constraint("Coincident", 71, 2, 72, 1),
    Sketcher.Constraint("Coincident", 72, 2, 73, 1),
    Sketcher.Constraint("Coincident", 73, 2, 74, 1),
    Sketcher.Constraint("Coincident", 74, 2, 75, 1),
    Sketcher.Constraint("Coincident", 75, 2, 76, 1),
    Sketcher.Constraint("Coincident", 76, 2, 77, 1),
    Sketcher.Constraint("Coincident", 77, 2, 78, 1),
    Sketcher.Constraint("Coincident", 78, 2, 79, 1),
    Sketcher.Constraint("Coincident", 79, 2, 0, 1),
    Sketcher.Constraint("PointOnObject", 79, 2, -2),
    Sketcher.Constraint("Equal", 0, 1),
    Sketcher.Constraint("Equal", 2, 3),
    Sketcher.Constraint("Equal", 3, 4),
    Sketcher.Constraint("Equal", 4, 5),
    Sketcher.Constraint("Equal", 5, 6),
    Sketcher.Constraint("Equal", 6, 7),
    Sketcher.Constraint("Equal", 7, 8),
    Sketcher.Constraint("Equal", 8, 9),
    Sketcher.Constraint("Equal", 9, 10),
    Sketcher.Constraint("Equal", 10, 11),
    Sketcher.Constraint("Equal", 11, 12),
    Sketcher.Constraint("Equal", 12, 13),
    Sketcher.Constraint("Equal", 13, 14),
    Sketcher.Constraint("Equal", 14, 15),
    Sketcher.Constraint("Equal", 15, 16),
    Sketcher.Constraint("Equal", 16, 17),
    Sketcher.Constraint("Equal", 17, 18),
    Sketcher.Constraint("Equal", 18, 19),
    Sketcher.Constraint("Equal", 19, 20),
    Sketcher.Constraint("Equal", 20, 21),
    Sketcher.Constraint("Equal", 21, 22),
    Sketcher.Constraint("Equal", 22, 23),
    Sketcher.Constraint("Equal", 23, 24),
    Sketcher.Constraint("Equal", 24, 25),
    Sketcher.Constraint("Equal", 25, 26),
    Sketcher.Constraint("Equal", 26, 27),
    Sketcher.Constraint("Equal", 27, 28),
    Sketcher.Constraint("Equal", 28, 29),
    Sketcher.Constraint("Equal", 29, 30),
    Sketcher.Constraint("Equal", 30, 31),
    Sketcher.Constraint("Equal", 31, 32),
    Sketcher.Constraint("Equal", 32, 33),
    Sketcher.Constraint("Equal", 33, 34),
    Sketcher.Constraint("Equal", 34, 35),
    Sketcher.Constraint("Equal", 35, 36),
    Sketcher.Constraint("Equal", 36, 37),
    Sketcher.Constraint("Equal", 37, 38),
    Sketcher.Constraint("Equal", 38, 39),
    Sketcher.Constraint("Equal", 39, 40),
    Sketcher.Constraint("Equal", 40, 41),
    Sketcher.Constraint("Equal", 41, 42),
    Sketcher.Constraint("Equal", 42, 43),
    Sketcher.Constraint("Equal", 43, 44),
    Sketcher.Constraint("Equal", 44, 45),
    Sketcher.Constraint("Equal", 45, 46),
    Sketcher.Constraint("Equal", 46, 47),
    Sketcher.Constraint("Equal", 47, 48),
    Sketcher.Constraint("Equal", 48, 49),
    Sketcher.Constraint("Equal", 49, 50),
    Sketcher.Constraint("Equal", 50, 51),
    Sketcher.Constraint("Equal", 51, 52),
    Sketcher.Constraint("Equal", 52, 53),
    Sketcher.Constraint("Equal", 53, 54),
    Sketcher.Constraint("Equal", 54, 55),
    Sketcher.Constraint("Equal", 55, 56),
    Sketcher.Constraint("Equal", 56, 57),
    Sketcher.Constraint("Equal", 57, 58),
    Sketcher.Constraint("Equal", 58, 59),
    Sketcher.Constraint("Equal", 59, 60),
    Sketcher.Constraint("Equal", 60, 61),
    Sketcher.Constraint("Equal", 61, 62),
    Sketcher.Constraint("Equal", 62, 63),
    Sketcher.Constraint("Equal", 63, 64),
    Sketcher.Constraint("Equal", 64, 65),
    Sketcher.Constraint("Equal", 65, 66),
    Sketcher.Constraint("Equal", 66, 67),
    Sketcher.Constraint("Equal", 67, 68),
    Sketcher.Constraint("Equal", 68, 69),
    Sketcher.Constraint("Equal", 69, 70),
    Sketcher.Constraint("Equal", 70, 71),
    Sketcher.Constraint("Equal", 71, 72),
    Sketcher.Constraint("Equal", 72, 73),
    Sketcher.Constraint("Equal", 73, 74),
    Sketcher.Constraint("Equal", 74, 75),
    Sketcher.Constraint("Equal", 75, 76),
    Sketcher.Constraint("Equal", 76, 77),
    Sketcher.Constraint("Equal", 77, 78),
    Sketcher.Constraint("Equal", 78, 79),
    Sketcher.Constraint("Angle", 10, Q("-75.699982 deg")),
    Sketcher.Constraint("Angle", 71, Q("85.699982 deg")),
    Sketcher.Constraint("DistanceX", 7, 2, -1, 1, Q("30.837 mm")),
    Sketcher.Constraint("DistanceX", 9, 2, -1, 1, Q("36.8609 mm")),
    Sketcher.Constraint("DistanceX", 15, 2, -1, 1, Q("49.0413 mm")),
    Sketcher.Constraint("DistanceY", 52, 2, -1, 1, Q("23.623598 mm")),
    Sketcher.Constraint("DistanceX", -1, 1, 53, 2, Q("45.871502 mm")),
    Sketcher.Constraint("DistanceY", 54, 2, -1, 1, Q("17.238499 mm")),
    Sketcher.Constraint("DistanceX", -1, 1, 66, 2, Q("38.865201 mm")),
    Sketcher.Constraint("Distance", 0, Q("7.504059 mm")),
    Sketcher.Constraint("Distance", 2, Q("6.818531 mm")),
    Sketcher.Constraint("DistanceY", -1, 1, 0, 2, Q("44.939912 mm")),
    Sketcher.Constraint("DistanceX", 1, 2, -1, 1, Q("8.913621 mm")),
    Sketcher.Constraint("DistanceX", 3, 2, -1, 1, Q("16.690179 mm")),
    Sketcher.Constraint("DistanceY", -1, 1, 3, 2, Q("48.542359 mm")),
    Sketcher.Constraint("DistanceY", -1, 1, 4, 2, Q("41.888639 mm")),
    Sketcher.Constraint("DistanceY", -1, 1, 11, 2, Q("29.536551 mm")),
    Sketcher.Constraint("DistanceY", -1, 1, 12, 2, Q("23.272891 mm")),
    Sketcher.Constraint("DistanceY", -1, 1, 13, 2, Q("22.626048 mm")),
    Sketcher.Constraint("DistanceY", -1, 1, 15, 2, Q("15.16158 mm")),
    Sketcher.Constraint("DistanceX", 16, 2, -1, 1, Q("44.547938 mm")),
    Sketcher.Constraint("DistanceX", 17, 2, -1, 1, Q("50.806041 mm")),
    Sketcher.Constraint("DistanceX", 18, 2, -1, 1, Q("45.56767 mm")),
    Sketcher.Constraint("DistanceX", 19, 2, -1, 1, Q("51.326872 mm")),
    Sketcher.Constraint("DistanceX", 21, 2, -1, 1, Q("50.591041 mm")),
    Sketcher.Constraint("DistanceX", 24, 2, -1, 1, Q("41.96958 mm")),
    Sketcher.Constraint("DistanceY", 24, 2, -1, 1, Q("17.992632 mm")),
    Sketcher.Constraint("DistanceY", 28, 2, -1, 1, Q("30.050562 mm")),
    Sketcher.Constraint("DistanceY", 29, 2, -1, 1, Q("36.700659 mm")),
    Sketcher.Constraint("DistanceX", 32, 2, -1, 1, Q("23.448479 mm")),
    Sketcher.Constraint("DistanceX", 33, 2, -1, 1, Q("22.83202 mm")),
    Sketcher.Constraint("DistanceY", 33, 2, -1, 1, Q("45.97414 mm")),
    Sketcher.Constraint("DistanceY", 35, 2, -1, 1, Q("48.972958 mm")),
    Sketcher.Constraint("DistanceX", -1, 1, 39, 2, Q("0.459432 mm")),
    Sketcher.Constraint("DistanceY", 39, 2, -1, 1, Q("51.329442 mm")),
    Sketcher.Constraint("DistanceX", -1, 1, 40, 2, Q("3.97986 mm")),
    Sketcher.Constraint("DistanceY", 41, 2, -1, 1, Q("50.629412 mm")),
    Sketcher.Constraint("DistanceX", -1, 1, 44, 2, Q("17.80463 mm")),
    Sketcher.Constraint("DistanceY", 44, 2, -1, 1, Q("42.04968 mm")),
    Sketcher.Constraint("DistanceY", 46, 2, -1, 1, Q("38.757531 mm")),
    Sketcher.Constraint("DistanceY", 47, 2, -1, 1, Q("41.310951 mm")),
    Sketcher.Constraint("DistanceY", 48, 2, -1, 1, Q("34.516462 mm")),
    Sketcher.Constraint("DistanceY", 49, 2, -1, 1, Q("36.05238 mm")),
    Sketcher.Constraint("DistanceY", 50, 2, -1, 1, Q("29.430308 mm")),
    Sketcher.Constraint("DistanceY", 51, 2, -1, 1, Q("29.911122 mm")),
    Sketcher.Constraint("DistanceX", -1, 1, 54, 2, Q("42.284921 mm")),
    Sketcher.Constraint("DistanceY", 57, 2, -1, 1, Q("7.780339 mm")),
    Sketcher.Constraint("DistanceY", 58, 2, -1, 1, Q("3.368789 mm")),
    Sketcher.Constraint("DistanceY", -1, 1, 59, 2, Q("0.229718 mm")),
    Sketcher.Constraint("DistanceX", -1, 1, 61, 2, Q("50.666768 mm")),
    Sketcher.Constraint("DistanceY", -1, 1, 61, 2, Q("8.234151 mm")),
    Sketcher.Constraint("DistanceX", -1, 1, 62, 2, Q("44.361211 mm")),
    Sketcher.Constraint("DistanceX", -1, 1, 64, 2, Q("42.128938 mm")),
    Sketcher.Constraint("DistanceY", -1, 1, 64, 2, Q("17.616271 mm")),
    Sketcher.Constraint("DistanceX", -1, 1, 65, 2, Q("45.663472 mm")),
    Sketcher.Constraint("DistanceX", -1, 1, 67, 2, Q("41.446889 mm")),
    Sketcher.Constraint("DistanceX", -1, 1, 69, 2, Q("36.215541 mm")),
    Sketcher.Constraint("DistanceY", -1, 1, 70, 2, Q("34.78266 mm")),
    Sketcher.Constraint("DistanceX", -1, 1, 71, 2, Q("30.09751 mm")),
    Sketcher.Constraint("DistanceX", -1, 1, 74, 2, Q("17.42756 mm")),
    Sketcher.Constraint("DistanceX", -1, 1, 76, 2, Q("10.630188 mm")),
    Sketcher.Constraint("DistanceY", -1, 1, 76, 2, Q("44.409228 mm")),
    Sketcher.Constraint("DistanceY", -1, 1, 77, 2, Q("50.70311 mm")),
    Sketcher.Constraint("DistanceY", -1, 1, 78, 2, Q("45.52381 mm")),
    Sketcher.Constraint("DistanceX", 5, 2, -1, 1, Q("24.058103 mm")),
    Sketcher.Constraint("DistanceX", 6, 2, -1, 1, Q("24.492026 mm")),
    Sketcher.Constraint("DistanceX", 8, 2, -1, 1, Q("30.204128 mm")),
    Sketcher.Constraint("DistanceX", 20, 2, -1, 1, Q("45.471745 mm")),
    Sketcher.Constraint("DistanceX", 22, 2, -1, 1, Q("44.262513 mm")),
    Sketcher.Constraint("DistanceX", 25, 2, -1, 1, Q("45.451784 mm")),
    Sketcher.Constraint("DistanceX", 26, 2, -1, 1, Q("38.649084 mm")),
    Sketcher.Constraint("DistanceX", 27, 2, -1, 1, Q("41.174185 mm")),
    Sketcher.Constraint("DistanceX", 30, 2, -1, 1, Q("29.273764 mm")),
    Sketcher.Constraint("DistanceX", 34, 2, -1, 1, Q("17.049094 mm")),
    Sketcher.Constraint("DistanceX", 36, 2, -1, 1, Q("10.232287 mm")),
    Sketcher.Constraint("DistanceX", 37, 2, -1, 1, Q("7.553197 mm")),
    Sketcher.Constraint("DistanceX", -1, 1, 42, 2, Q("11.027238 mm")),
    Sketcher.Constraint("DistanceX", -1, 1, 55, 2, Q("48.903635 mm")),
    Sketcher.Constraint("DistanceX", -1, 1, 56, 2, Q("44.456356 mm")),
    Sketcher.Constraint("DistanceX", -1, 1, 72, 2, Q("23.798244 mm")),
    Sketcher.Constraint("DistanceX", -1, 1, 73, 2, Q("23.242587 mm")),
])
pad3 = body3.newObject("PartDesign::Pad", "Pad002")
pad3.Profile = sketch3
pad3.Length = 10

doc.recompute()
